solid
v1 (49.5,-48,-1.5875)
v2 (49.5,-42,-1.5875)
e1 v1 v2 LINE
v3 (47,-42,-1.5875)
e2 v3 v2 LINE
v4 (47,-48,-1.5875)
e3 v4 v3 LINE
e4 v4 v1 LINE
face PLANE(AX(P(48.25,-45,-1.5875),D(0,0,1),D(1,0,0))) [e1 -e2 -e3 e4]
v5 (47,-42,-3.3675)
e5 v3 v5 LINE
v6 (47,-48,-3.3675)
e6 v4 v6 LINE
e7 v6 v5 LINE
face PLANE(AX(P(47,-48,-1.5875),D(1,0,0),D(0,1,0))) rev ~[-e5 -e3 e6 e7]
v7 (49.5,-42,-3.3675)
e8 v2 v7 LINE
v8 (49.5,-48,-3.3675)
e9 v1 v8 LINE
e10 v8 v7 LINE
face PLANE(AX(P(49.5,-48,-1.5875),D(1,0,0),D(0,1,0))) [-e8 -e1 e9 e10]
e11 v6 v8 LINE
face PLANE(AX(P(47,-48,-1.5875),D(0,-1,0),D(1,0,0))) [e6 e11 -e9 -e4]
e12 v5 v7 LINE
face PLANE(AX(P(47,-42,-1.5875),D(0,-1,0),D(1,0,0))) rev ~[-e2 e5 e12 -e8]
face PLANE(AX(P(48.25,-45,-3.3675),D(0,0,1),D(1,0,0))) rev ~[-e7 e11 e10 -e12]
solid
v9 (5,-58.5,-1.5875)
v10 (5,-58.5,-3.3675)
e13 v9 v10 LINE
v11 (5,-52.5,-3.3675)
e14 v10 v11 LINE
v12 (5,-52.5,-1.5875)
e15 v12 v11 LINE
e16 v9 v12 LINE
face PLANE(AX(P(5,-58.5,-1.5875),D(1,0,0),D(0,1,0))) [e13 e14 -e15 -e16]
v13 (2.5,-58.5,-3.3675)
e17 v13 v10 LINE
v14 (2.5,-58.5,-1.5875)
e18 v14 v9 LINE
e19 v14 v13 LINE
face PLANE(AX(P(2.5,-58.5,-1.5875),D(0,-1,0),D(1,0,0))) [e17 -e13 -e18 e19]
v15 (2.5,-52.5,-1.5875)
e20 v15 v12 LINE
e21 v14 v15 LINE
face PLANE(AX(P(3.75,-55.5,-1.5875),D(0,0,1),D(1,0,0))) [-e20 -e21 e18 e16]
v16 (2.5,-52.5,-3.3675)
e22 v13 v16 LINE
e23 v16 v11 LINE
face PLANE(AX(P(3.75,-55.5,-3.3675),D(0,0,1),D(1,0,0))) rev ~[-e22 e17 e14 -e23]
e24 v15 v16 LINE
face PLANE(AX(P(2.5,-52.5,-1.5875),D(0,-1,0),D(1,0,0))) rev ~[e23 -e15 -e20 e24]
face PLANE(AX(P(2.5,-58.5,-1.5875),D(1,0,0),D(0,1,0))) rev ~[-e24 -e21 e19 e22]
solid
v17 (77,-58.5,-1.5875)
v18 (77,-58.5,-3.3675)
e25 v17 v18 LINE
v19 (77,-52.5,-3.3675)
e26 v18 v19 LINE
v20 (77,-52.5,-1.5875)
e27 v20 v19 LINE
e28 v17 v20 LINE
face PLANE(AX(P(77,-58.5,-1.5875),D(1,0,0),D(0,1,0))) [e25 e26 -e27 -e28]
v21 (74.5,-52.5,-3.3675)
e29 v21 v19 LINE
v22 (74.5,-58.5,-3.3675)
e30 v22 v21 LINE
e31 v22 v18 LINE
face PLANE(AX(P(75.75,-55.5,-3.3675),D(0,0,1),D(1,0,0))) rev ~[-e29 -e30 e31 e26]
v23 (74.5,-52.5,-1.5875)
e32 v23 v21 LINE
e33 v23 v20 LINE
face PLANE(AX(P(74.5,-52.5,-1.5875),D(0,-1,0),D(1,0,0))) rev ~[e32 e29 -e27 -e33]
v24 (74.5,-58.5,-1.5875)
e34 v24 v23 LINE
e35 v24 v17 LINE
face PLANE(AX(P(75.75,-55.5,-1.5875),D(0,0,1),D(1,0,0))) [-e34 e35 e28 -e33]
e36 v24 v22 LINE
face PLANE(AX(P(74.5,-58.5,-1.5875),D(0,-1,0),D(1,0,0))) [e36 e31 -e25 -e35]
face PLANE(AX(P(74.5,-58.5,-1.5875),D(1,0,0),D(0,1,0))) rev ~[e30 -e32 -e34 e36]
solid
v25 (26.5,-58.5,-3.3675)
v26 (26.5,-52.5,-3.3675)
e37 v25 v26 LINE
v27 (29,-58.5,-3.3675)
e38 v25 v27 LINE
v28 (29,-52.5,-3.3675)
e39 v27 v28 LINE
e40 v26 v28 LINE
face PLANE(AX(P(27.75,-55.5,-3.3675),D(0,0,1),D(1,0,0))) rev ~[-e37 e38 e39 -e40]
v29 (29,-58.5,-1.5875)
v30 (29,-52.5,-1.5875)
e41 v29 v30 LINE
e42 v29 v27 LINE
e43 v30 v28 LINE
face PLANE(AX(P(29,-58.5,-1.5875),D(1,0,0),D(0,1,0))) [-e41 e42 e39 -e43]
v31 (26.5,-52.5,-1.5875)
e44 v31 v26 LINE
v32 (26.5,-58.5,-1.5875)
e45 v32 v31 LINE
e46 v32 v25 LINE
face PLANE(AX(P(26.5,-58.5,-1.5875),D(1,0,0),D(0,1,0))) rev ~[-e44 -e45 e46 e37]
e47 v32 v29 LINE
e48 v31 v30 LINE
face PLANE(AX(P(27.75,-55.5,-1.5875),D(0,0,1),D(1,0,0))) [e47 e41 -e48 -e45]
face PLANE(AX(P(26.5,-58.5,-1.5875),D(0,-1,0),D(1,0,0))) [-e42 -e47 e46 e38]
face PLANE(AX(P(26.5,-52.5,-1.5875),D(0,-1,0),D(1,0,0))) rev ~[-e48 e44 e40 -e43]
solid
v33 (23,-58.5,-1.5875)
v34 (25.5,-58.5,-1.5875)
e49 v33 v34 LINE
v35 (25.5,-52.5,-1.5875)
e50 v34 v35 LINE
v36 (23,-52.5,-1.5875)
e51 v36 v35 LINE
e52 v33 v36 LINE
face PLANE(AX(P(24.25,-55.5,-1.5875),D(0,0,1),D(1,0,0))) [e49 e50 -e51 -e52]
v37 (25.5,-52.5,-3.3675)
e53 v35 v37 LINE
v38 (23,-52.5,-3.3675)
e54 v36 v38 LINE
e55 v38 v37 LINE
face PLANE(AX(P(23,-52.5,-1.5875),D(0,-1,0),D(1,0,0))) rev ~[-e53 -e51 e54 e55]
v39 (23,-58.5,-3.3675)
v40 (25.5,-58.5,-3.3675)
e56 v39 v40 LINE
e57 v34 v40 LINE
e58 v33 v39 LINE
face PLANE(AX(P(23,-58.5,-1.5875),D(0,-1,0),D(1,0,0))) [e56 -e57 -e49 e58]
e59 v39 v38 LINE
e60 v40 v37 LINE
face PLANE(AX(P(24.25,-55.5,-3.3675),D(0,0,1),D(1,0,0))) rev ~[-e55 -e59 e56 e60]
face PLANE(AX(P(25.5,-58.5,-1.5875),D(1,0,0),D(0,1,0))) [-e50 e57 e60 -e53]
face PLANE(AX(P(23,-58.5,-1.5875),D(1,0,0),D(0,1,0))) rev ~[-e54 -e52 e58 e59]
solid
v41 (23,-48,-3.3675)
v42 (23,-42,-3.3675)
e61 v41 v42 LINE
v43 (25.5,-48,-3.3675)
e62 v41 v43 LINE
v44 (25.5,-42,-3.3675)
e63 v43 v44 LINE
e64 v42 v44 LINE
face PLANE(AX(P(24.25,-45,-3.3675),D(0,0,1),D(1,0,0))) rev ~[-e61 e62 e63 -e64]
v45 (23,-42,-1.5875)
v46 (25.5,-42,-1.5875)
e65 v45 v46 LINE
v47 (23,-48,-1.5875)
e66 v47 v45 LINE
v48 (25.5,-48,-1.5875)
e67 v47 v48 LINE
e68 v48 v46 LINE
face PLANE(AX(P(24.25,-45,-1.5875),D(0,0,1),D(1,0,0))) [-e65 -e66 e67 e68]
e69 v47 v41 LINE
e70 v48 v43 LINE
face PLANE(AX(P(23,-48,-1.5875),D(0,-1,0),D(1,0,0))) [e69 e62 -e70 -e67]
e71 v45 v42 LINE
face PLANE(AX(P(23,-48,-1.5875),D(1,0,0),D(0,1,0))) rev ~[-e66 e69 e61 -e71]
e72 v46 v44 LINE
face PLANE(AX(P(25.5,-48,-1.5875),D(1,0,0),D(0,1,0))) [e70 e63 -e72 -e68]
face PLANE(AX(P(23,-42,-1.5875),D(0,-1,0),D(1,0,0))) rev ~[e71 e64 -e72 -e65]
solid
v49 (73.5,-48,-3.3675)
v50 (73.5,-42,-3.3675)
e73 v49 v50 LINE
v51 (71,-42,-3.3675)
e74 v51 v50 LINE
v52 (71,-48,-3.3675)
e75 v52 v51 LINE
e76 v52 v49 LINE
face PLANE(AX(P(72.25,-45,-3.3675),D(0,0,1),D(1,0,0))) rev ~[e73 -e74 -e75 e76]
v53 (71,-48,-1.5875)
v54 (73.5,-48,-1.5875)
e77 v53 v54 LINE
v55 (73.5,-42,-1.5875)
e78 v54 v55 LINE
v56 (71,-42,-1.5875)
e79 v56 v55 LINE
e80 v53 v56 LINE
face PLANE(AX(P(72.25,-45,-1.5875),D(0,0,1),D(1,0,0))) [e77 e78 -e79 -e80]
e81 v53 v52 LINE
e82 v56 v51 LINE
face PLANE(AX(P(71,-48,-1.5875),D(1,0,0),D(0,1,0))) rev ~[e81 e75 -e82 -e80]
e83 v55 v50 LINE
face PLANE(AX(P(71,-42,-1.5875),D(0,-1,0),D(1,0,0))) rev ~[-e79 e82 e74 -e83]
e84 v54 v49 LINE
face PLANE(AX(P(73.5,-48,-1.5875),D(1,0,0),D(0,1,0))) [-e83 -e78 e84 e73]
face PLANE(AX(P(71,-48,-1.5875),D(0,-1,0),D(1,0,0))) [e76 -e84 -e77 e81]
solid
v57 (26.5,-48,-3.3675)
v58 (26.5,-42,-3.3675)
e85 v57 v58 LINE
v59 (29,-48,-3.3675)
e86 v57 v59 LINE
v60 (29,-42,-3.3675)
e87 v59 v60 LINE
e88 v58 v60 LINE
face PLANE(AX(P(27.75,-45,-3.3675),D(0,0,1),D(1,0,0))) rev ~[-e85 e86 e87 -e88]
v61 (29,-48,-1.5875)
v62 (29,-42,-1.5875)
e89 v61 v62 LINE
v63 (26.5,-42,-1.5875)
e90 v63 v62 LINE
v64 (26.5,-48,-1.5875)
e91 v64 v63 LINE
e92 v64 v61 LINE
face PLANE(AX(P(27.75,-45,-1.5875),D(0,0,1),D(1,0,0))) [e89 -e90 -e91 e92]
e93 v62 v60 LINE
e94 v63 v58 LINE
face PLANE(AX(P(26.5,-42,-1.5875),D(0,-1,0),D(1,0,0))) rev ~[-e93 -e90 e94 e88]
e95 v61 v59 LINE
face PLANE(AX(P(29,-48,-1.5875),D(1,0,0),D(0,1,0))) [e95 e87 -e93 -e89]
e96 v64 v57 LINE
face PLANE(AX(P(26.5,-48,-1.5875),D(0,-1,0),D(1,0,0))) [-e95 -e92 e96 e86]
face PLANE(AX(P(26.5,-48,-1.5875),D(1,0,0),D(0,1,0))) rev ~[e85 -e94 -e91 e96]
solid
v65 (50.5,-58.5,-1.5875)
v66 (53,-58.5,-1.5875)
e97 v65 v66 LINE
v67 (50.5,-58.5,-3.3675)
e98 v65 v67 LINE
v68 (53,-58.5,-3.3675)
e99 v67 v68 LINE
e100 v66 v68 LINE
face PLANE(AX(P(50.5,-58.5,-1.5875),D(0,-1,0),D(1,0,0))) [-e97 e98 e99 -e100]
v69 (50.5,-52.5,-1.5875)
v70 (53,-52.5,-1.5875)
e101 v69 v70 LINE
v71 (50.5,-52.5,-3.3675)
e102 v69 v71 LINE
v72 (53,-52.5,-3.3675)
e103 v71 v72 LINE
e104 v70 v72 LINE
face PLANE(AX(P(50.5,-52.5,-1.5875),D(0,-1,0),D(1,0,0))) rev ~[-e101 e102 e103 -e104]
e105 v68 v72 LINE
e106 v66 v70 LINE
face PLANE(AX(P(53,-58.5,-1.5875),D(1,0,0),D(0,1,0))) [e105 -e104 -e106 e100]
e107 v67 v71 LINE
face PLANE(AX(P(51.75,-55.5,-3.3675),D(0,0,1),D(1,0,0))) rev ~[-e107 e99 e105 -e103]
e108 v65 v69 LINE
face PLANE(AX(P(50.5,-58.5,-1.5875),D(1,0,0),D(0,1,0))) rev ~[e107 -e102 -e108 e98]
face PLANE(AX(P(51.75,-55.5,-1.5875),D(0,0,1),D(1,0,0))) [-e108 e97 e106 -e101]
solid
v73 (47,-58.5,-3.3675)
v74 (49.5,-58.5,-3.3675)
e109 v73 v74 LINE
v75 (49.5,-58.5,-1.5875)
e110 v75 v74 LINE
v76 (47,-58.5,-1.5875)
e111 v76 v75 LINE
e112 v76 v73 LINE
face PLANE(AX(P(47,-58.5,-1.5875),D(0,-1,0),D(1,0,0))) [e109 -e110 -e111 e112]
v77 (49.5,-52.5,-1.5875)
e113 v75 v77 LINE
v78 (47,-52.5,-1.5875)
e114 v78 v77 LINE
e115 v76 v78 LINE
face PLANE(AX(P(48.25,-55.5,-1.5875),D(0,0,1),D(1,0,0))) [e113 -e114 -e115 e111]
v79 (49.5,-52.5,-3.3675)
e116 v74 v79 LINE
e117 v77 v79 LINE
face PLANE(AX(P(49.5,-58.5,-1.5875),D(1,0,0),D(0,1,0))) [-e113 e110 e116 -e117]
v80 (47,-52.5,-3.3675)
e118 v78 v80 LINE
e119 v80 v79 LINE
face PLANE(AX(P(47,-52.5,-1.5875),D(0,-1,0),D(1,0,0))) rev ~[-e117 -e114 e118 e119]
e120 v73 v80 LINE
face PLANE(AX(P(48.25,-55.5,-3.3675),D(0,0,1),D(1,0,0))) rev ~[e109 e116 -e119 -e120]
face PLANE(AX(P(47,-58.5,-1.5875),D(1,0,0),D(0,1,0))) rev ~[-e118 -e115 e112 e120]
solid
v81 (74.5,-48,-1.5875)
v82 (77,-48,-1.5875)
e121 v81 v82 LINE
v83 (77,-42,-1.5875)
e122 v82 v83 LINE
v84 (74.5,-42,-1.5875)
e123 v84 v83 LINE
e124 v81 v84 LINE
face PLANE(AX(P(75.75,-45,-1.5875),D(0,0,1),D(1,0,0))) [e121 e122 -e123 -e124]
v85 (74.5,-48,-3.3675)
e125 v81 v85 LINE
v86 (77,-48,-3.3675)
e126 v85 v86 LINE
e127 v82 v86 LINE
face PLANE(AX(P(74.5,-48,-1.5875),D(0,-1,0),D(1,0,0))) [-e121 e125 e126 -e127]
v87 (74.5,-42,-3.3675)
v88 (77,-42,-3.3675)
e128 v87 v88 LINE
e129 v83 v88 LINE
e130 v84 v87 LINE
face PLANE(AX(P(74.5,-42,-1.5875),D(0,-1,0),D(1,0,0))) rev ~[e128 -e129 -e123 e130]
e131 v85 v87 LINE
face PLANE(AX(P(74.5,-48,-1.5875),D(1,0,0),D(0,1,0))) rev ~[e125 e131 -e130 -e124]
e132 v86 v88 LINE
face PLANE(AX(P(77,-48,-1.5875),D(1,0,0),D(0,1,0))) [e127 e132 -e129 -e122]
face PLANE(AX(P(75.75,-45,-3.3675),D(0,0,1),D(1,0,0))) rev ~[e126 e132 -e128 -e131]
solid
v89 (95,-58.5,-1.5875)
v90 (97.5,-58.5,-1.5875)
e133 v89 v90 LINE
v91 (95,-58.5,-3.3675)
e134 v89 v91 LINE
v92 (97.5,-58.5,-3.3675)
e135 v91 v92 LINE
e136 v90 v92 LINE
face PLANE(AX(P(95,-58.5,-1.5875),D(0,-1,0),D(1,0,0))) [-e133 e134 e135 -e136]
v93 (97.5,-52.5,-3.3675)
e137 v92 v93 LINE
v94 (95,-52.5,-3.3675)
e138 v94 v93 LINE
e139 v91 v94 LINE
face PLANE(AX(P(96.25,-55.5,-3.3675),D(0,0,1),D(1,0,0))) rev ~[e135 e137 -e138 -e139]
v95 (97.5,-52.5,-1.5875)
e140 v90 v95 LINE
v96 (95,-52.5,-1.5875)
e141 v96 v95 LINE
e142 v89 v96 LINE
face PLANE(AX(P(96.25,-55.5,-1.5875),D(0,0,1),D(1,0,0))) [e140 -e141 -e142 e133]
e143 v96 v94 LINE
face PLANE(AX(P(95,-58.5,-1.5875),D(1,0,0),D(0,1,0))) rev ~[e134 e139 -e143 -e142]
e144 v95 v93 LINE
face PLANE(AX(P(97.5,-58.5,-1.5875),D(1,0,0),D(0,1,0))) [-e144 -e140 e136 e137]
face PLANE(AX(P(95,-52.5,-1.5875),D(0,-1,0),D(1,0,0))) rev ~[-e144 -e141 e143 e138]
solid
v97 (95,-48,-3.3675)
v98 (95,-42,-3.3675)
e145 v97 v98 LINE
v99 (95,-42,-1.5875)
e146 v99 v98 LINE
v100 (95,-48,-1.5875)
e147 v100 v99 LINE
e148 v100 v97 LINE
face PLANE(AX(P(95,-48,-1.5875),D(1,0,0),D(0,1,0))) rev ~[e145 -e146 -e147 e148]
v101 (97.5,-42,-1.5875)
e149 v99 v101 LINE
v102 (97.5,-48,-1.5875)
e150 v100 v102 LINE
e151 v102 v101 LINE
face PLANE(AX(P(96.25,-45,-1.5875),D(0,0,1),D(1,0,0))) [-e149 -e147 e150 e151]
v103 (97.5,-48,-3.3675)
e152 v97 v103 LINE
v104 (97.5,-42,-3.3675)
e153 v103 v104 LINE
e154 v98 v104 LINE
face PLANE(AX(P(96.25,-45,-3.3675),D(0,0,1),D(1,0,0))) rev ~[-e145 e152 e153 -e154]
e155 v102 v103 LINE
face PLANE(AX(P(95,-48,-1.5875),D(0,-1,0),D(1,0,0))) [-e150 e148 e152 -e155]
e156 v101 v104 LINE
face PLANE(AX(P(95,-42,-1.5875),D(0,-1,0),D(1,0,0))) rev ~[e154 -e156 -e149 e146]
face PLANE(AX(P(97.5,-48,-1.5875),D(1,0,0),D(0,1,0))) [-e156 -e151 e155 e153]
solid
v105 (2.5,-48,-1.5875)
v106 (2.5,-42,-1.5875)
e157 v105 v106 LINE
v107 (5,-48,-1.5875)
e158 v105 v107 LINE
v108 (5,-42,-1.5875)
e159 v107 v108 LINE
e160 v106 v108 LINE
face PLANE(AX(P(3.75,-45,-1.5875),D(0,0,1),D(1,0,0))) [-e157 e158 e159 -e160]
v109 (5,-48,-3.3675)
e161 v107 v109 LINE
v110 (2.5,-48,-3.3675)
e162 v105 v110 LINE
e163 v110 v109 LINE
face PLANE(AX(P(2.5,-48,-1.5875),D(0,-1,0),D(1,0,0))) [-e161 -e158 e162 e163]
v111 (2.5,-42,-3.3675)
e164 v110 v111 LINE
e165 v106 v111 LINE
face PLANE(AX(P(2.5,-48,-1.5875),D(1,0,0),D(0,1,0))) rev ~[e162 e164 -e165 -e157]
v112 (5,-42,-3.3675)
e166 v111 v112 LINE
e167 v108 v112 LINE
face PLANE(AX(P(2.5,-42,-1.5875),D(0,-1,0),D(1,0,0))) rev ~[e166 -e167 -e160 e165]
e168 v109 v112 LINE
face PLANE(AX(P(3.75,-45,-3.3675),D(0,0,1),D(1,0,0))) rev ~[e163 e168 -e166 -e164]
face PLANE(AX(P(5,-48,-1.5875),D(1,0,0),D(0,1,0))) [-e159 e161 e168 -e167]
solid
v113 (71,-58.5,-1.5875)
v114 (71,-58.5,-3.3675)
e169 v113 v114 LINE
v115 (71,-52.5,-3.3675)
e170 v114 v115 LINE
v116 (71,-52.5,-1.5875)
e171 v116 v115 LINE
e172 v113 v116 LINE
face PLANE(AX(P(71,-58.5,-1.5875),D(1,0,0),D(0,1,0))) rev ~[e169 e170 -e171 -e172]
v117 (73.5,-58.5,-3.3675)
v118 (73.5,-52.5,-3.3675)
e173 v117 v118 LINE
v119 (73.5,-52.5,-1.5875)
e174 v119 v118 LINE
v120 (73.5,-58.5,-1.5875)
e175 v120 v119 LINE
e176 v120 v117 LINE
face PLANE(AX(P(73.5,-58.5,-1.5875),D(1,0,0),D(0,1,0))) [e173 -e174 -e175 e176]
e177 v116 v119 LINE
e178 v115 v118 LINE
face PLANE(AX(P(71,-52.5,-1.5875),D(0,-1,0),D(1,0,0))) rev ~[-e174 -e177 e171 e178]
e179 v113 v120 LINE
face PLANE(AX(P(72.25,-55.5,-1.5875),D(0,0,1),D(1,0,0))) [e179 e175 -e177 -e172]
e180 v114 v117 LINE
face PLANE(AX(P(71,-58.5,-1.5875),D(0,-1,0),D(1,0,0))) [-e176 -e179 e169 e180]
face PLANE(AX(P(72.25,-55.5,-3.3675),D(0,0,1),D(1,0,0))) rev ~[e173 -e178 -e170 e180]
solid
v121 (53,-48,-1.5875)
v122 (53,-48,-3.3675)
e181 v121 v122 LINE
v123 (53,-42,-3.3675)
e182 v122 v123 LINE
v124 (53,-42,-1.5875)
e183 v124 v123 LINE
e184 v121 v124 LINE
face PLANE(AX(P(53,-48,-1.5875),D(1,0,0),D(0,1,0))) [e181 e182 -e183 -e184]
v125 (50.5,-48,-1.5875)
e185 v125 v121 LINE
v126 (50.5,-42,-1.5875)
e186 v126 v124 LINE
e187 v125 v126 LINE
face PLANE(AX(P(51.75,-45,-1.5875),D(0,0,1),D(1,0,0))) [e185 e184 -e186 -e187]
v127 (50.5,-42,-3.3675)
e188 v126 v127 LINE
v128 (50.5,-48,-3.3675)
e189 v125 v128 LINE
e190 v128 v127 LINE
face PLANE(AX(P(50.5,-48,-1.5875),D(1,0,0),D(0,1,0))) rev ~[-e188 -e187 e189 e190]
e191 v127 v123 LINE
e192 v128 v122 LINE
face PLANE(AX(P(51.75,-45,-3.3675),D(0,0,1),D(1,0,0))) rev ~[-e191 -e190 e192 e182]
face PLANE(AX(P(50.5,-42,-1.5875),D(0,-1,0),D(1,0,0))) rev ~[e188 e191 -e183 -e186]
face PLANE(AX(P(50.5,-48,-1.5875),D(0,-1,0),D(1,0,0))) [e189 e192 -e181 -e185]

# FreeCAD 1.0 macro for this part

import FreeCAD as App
import Part
import Sketcher

doc = App.newDocument("Part")
params = doc.addObject("Spreadsheet::Sheet", "Params")
for row, (alias, value) in enumerate([
    ("sketch1_height", "6 mm"),
    ("sketch1_width", "2.5 mm"),
    ("pad1_length", "1.78 mm"),
    ("sketch2_height", "6 mm"),
    ("sketch2_width", "2.5 mm"),
    ("pad2_length", "1.78 mm"),
    ("sketch3_height", "6 mm"),
    ("sketch3_width", "2.5 mm"),
    ("pad3_length", "1.78 mm"),
    ("sketch4_height", "6 mm"),
    ("sketch4_width", "2.5 mm"),
    ("pad4_length", "1.78 mm"),
    ("sketch5_height", "6 mm"),
    ("sketch5_width", "2.5 mm"),
    ("pad5_length", "1.78 mm"),
    ("sketch6_height", "6 mm"),
    ("sketch6_width", "2.5 mm"),
    ("pad6_length", "1.78 mm"),
    ("sketch7_height", "6 mm"),
    ("sketch7_width", "2.5 mm"),
    ("pad7_length", "1.78 mm"),
    ("sketch8_height", "6 mm"),
    ("sketch8_width", "2.5 mm"),
    ("pad8_length", "1.78 mm"),
    ("sketch9_height", "6 mm"),
    ("sketch9_width", "2.5 mm"),
    ("pad9_length", "1.78 mm"),
    ("sketch10_height", "6 mm"),
    ("sketch10_width", "2.5 mm"),
    ("pad10_length", "1.78 mm"),
    ("sketch11_height", "6 mm"),
    ("sketch11_width", "2.5 mm"),
    ("pad11_length", "1.78 mm"),
    ("sketch12_height", "6 mm"),
    ("sketch12_width", "2.5 mm"),
    ("pad12_length", "1.78 mm"),
    ("sketch13_height", "6 mm"),
    ("sketch13_width", "2.5 mm"),
    ("pad13_length", "1.78 mm"),
    ("sketch14_height", "6 mm"),
    ("sketch14_width", "2.5 mm"),
    ("pad14_length", "1.78 mm"),
    ("sketch15_height", "6 mm"),
    ("sketch15_width", "2.5 mm"),
    ("pad15_length", "1.78 mm"),
    ("sketch16_height", "6 mm"),
    ("sketch16_width", "2.5 mm"),
    ("pad16_length", "1.78 mm"),
], start=1):
    params.set(f"A{row}", alias)
    params.set(f"B{row}", "=" + value)
    params.setAlias(f"B{row}", alias)

body = doc.addObject("PartDesign::Body", "Body")

# Sketch on XY plane
sketch1 = doc.addObject("Sketcher::SketchObject", "Sketch")
body.addObject(sketch1)
sketch1.AttachmentSupport = (doc.XY_Plane, [""])
sketch1.MapMode = "FlatFace"
sketch1.AttachmentOffset = App.Placement(App.Vector(0, 0, -1.5875), App.Rotation())
sketch1.addGeometry([
    Part.LineSegment(App.Vector(23, -42, 0), App.Vector(23, -48, 0)),
    Part.LineSegment(App.Vector(23, -48, 0), App.Vector(25.5, -48, 0)),
    Part.LineSegment(App.Vector(25.5, -48, 0), App.Vector(25.5, -42, 0)),
    Part.LineSegment(App.Vector(25.5, -42, 0), App.Vector(23, -42, 0)),
], False)
sketch1.addConstraint([
    Sketcher.Constraint("Coincident", 0, 2, 1, 1),
    Sketcher.Constraint("Coincident", 1, 2, 2, 1),
    Sketcher.Constraint("Coincident", 2, 2, 3, 1),
    Sketcher.Constraint("Coincident", 3, 2, 0, 1),
    Sketcher.Constraint("Vertical", 0),
    Sketcher.Constraint("Horizontal", 1),
    Sketcher.Constraint("Vertical", 2),
    Sketcher.Constraint("Horizontal", 3),
    Sketcher.Constraint("DistanceY", 0, 2, 0, 1, 6.0),
    Sketcher.Constraint("DistanceX", 1, 1, 1, 2, 2.5),
    Sketcher.Constraint("DistanceX", -1, 1, 0, 2, 23.0),
    Sketcher.Constraint("DistanceY", 0, 2, -1, 1, 48.0),
])
sketch1.setExpression("Constraints[8]", "Params.sketch1_height")
sketch1.setExpression("Constraints[9]", "Params.sketch1_width")
pad1 = doc.addObject("PartDesign::Pad", "Pad")
body.addObject(pad1)
pad1.Profile = sketch1
pad1.setExpression("Length", "Params.pad1_length")
pad1.Reversed = True
body2 = doc.addObject("PartDesign::Body", "Body001")

# Sketch on XY plane
sketch2 = doc.addObject("Sketcher::SketchObject", "Sketch001")
body2.addObject(sketch2)
sketch2.AttachmentSupport = (doc.getObject("XY_Plane001"), [""])
sketch2.MapMode = "FlatFace"
sketch2.AttachmentOffset = App.Placement(App.Vector(0, 0, -1.5875), App.Rotation())
sketch2.addGeometry([
    Part.LineSegment(App.Vector(2.5, -42, 0), App.Vector(2.5, -48, 0)),
    Part.LineSegment(App.Vector(2.5, -48, 0), App.Vector(5, -48, 0)),
    Part.LineSegment(App.Vector(5, -48, 0), App.Vector(5, -42, 0)),
    Part.LineSegment(App.Vector(5, -42, 0), App.Vector(2.5, -42, 0)),
], False)
sketch2.addConstraint([
    Sketcher.Constraint("Coincident", 0, 2, 1, 1),
    Sketcher.Constraint("Coincident", 1, 2, 2, 1),
    Sketcher.Constraint("Coincident", 2, 2, 3, 1),
    Sketcher.Constraint("Coincident", 3, 2, 0, 1),
    Sketcher.Constraint("Vertical", 0),
    Sketcher.Constraint("Horizontal", 1),
    Sketcher.Constraint("Vertical", 2),
    Sketcher.Constraint("Horizontal", 3),
    Sketcher.Constraint("DistanceY", 0, 2, 0, 1, 6.0),
    Sketcher.Constraint("DistanceX", 1, 1, 1, 2, 2.5),
    Sketcher.Constraint("DistanceY", 0, 2, -1, 1, 48.0),
    Sketcher.Constraint("DistanceX", -1, 1, 1, 2, 5.0),
])
sketch2.setExpression("Constraints[8]", "Params.sketch2_height")
sketch2.setExpression("Constraints[9]", "Params.sketch2_width")
pad2 = doc.addObject("PartDesign::Pad", "Pad001")
body2.addObject(pad2)
pad2.Profile = sketch2
pad2.setExpression("Length", "Params.pad2_length")
pad2.Reversed = True
body3 = doc.addObject("PartDesign::Body", "Body002")

# Sketch on XY plane
sketch3 = doc.addObject("Sketcher::SketchObject", "Sketch002")
body3.addObject(sketch3)
sketch3.AttachmentSupport = (doc.getObject("XY_Plane002"), [""])
sketch3.MapMode = "FlatFace"
sketch3.AttachmentOffset = App.Placement(App.Vector(0, 0, -1.5875), App.Rotation())
sketch3.addGeometry([
    Part.LineSegment(App.Vector(2.5, -52.5, 0), App.Vector(2.5, -58.5, 0)),
    Part.LineSegment(App.Vector(2.5, -58.5, 0), App.Vector(5, -58.5, 0)),
    Part.LineSegment(App.Vector(5, -58.5, 0), App.Vector(5, -52.5, 0)),
    Part.LineSegment(App.Vector(5, -52.5, 0), App.Vector(2.5, -52.5, 0)),
], False)
sketch3.addConstraint([
    Sketcher.Constraint("Coincident", 0, 2, 1, 1),
    Sketcher.Constraint("Coincident", 1, 2, 2, 1),
    Sketcher.Constraint("Coincident", 2, 2, 3, 1),
    Sketcher.Constraint("Coincident", 3, 2, 0, 1),
    Sketcher.Constraint("Vertical", 0),
    Sketcher.Constraint("Horizontal", 1),
    Sketcher.Constraint("Vertical", 2),
    Sketcher.Constraint("Horizontal", 3),
    Sketcher.Constraint("DistanceY", 0, 2, 0, 1, 6.0),
    Sketcher.Constraint("DistanceX", 1, 1, 1, 2, 2.5),
    Sketcher.Constraint("DistanceX", -1, 1, 1, 2, 5.0),
    Sketcher.Constraint("DistanceY", 0, 2, -1, 1, 58.5),
])
sketch3.setExpression("Constraints[8]", "Params.sketch3_height")
sketch3.setExpression("Constraints[9]", "Params.sketch3_width")
pad3 = doc.addObject("PartDesign::Pad", "Pad002")
body3.addObject(pad3)
pad3.Profile = sketch3
pad3.setExpression("Length", "Params.pad3_length")
pad3.Reversed = True
body4 = doc.addObject("PartDesign::Body", "Body003")

# Sketch on XY plane
sketch4 = doc.addObject("Sketcher::SketchObject", "Sketch003")
body4.addObject(sketch4)
sketch4.AttachmentSupport = (doc.getObject("XY_Plane003"), [""])
sketch4.MapMode = "FlatFace"
sketch4.AttachmentOffset = App.Placement(App.Vector(0, 0, -1.5875), App.Rotation())
sketch4.addGeometry([
    Part.LineSegment(App.Vector(23, -52.5, 0), App.Vector(23, -58.5, 0)),
    Part.LineSegment(App.Vector(23, -58.5, 0), App.Vector(25.5, -58.5, 0)),
    Part.LineSegment(App.Vector(25.5, -58.5, 0), App.Vector(25.5, -52.5, 0)),
    Part.LineSegment(App.Vector(25.5, -52.5, 0), App.Vector(23, -52.5, 0)),
], False)
sketch4.addConstraint([
    Sketcher.Constraint("Coincident", 0, 2, 1, 1),
    Sketcher.Constraint("Coincident", 1, 2, 2, 1),
    Sketcher.Constraint("Coincident", 2, 2, 3, 1),
    Sketcher.Constraint("Coincident", 3, 2, 0, 1),
    Sketcher.Constraint("Vertical", 0),
    Sketcher.Constraint("Horizontal", 1),
    Sketcher.Constraint("Vertical", 2),
    Sketcher.Constraint("Horizontal", 3),
    Sketcher.Constraint("DistanceY", 0, 2, 0, 1, 6.0),
    Sketcher.Constraint("DistanceX", 1, 1, 1, 2, 2.5),
    Sketcher.Constraint("DistanceX", -1, 1, 0, 2, 23.0),
    Sketcher.Constraint("DistanceY", 0, 2, -1, 1, 58.5),
])
sketch4.setExpression("Constraints[8]", "Params.sketch4_height")
sketch4.setExpression("Constraints[9]", "Params.sketch4_width")
pad4 = doc.addObject("PartDesign::Pad", "Pad003")
body4.addObject(pad4)
pad4.Profile = sketch4
pad4.setExpression("Length", "Params.pad4_length")
pad4.Reversed = True
body5 = doc.addObject("PartDesign::Body", "Body004")

# Sketch on XY plane
sketch5 = doc.addObject("Sketcher::SketchObject", "Sketch004")
body5.addObject(sketch5)
sketch5.AttachmentSupport = (doc.getObject("XY_Plane004"), [""])
sketch5.MapMode = "FlatFace"
sketch5.AttachmentOffset = App.Placement(App.Vector(0, 0, -1.5875), App.Rotation())
sketch5.addGeometry([
    Part.LineSegment(App.Vector(47, -42, 0), App.Vector(47, -48, 0)),
    Part.LineSegment(App.Vector(47, -48, 0), App.Vector(49.5, -48, 0)),
    Part.LineSegment(App.Vector(49.5, -48, 0), App.Vector(49.5, -42, 0)),
    Part.LineSegment(App.Vector(49.5, -42, 0), App.Vector(47, -42, 0)),
], False)
sketch5.addConstraint([
    Sketcher.Constraint("Coincident", 0, 2, 1, 1),
    Sketcher.Constraint("Coincident", 1, 2, 2, 1),
    Sketcher.Constraint("Coincident", 2, 2, 3, 1),
    Sketcher.Constraint("Coincident", 3, 2, 0, 1),
    Sketcher.Constraint("Vertical", 0),
    Sketcher.Constraint("Horizontal", 1),
    Sketcher.Constraint("Vertical", 2),
    Sketcher.Constraint("Horizontal", 3),
    Sketcher.Constraint("DistanceY", 0, 2, 0, 1, 6.0),
    Sketcher.Constraint("DistanceX", 1, 1, 1, 2, 2.5),
    Sketcher.Constraint("DistanceX", -1, 1, 0, 2, 47.0),
    Sketcher.Constraint("DistanceY", 0, 2, -1, 1, 48.0),
])
sketch5.setExpression("Constraints[8]", "Params.sketch5_height")
sketch5.setExpression("Constraints[9]", "Params.sketch5_width")
pad5 = doc.addObject("PartDesign::Pad", "Pad004")
body5.addObject(pad5)
pad5.Profile = sketch5
pad5.setExpression("Length", "Params.pad5_length")
pad5.Reversed = True
body6 = doc.addObject("PartDesign::Body", "Body005")

# Sketch on XY plane
sketch6 = doc.addObject("Sketcher::SketchObject", "Sketch005")
body6.addObject(sketch6)
sketch6.AttachmentSupport = (doc.getObject("XY_Plane005"), [""])
sketch6.MapMode = "FlatFace"
sketch6.AttachmentOffset = App.Placement(App.Vector(0, 0, -1.5875), App.Rotation())
sketch6.addGeometry([
    Part.LineSegment(App.Vector(26.5, -42, 0), App.Vector(26.5, -48, 0)),
    Part.LineSegment(App.Vector(26.5, -48, 0), App.Vector(29, -48, 0)),
    Part.LineSegment(App.Vector(29, -48, 0), App.Vector(29, -42, 0)),
    Part.LineSegment(App.Vector(29, -42, 0), App.Vector(26.5, -42, 0)),
], False)
sketch6.addConstraint([
    Sketcher.Constraint("Coincident", 0, 2, 1, 1),
    Sketcher.Constraint("Coincident", 1, 2, 2, 1),
    Sketcher.Constraint("Coincident", 2, 2, 3, 1),
    Sketcher.Constraint("Coincident", 3, 2, 0, 1),
    Sketcher.Constraint("Vertical", 0),
    Sketcher.Constraint("Horizontal", 1),
    Sketcher.Constraint("Vertical", 2),
    Sketcher.Constraint("Horizontal", 3),
    Sketcher.Constraint("DistanceY", 0, 2, 0, 1, 6.0),
    Sketcher.Constraint("DistanceX", 1, 1, 1, 2, 2.5),
    Sketcher.Constraint("DistanceY", 0, 2, -1, 1, 48.0),
    Sketcher.Constraint("DistanceX", -1, 1, 1, 2, 29.0),
])
sketch6.setExpression("Constraints[8]", "Params.sketch6_height")
sketch6.setExpression("Constraints[9]", "Params.sketch6_width")
pad6 = doc.addObject("PartDesign::Pad", "Pad005")
body6.addObject(pad6)
pad6.Profile = sketch6
pad6.setExpression("Length", "Params.pad6_length")
pad6.Reversed = True
body7 = doc.addObject("PartDesign::Body", "Body006")

# Sketch on XY plane
sketch7 = doc.addObject("Sketcher::SketchObject", "Sketch006")
body7.addObject(sketch7)
sketch7.AttachmentSupport = (doc.getObject("XY_Plane006"), [""])
sketch7.MapMode = "FlatFace"
sketch7.AttachmentOffset = App.Placement(App.Vector(0, 0, -1.5875), App.Rotation())
sketch7.addGeometry([
    Part.LineSegment(App.Vector(26.5, -52.5, 0), App.Vector(26.5, -58.5, 0)),
    Part.LineSegment(App.Vector(26.5, -58.5, 0), App.Vector(29, -58.5, 0)),
    Part.LineSegment(App.Vector(29, -58.5, 0), App.Vector(29, -52.5, 0)),
    Part.LineSegment(App.Vector(29, -52.5, 0), App.Vector(26.5, -52.5, 0)),
], False)
sketch7.addConstraint([
    Sketcher.Constraint("Coincident", 0, 2, 1, 1),
    Sketcher.Constraint("Coincident", 1, 2, 2, 1),
    Sketcher.Constraint("Coincident", 2, 2, 3, 1),
    Sketcher.Constraint("Coincident", 3, 2, 0, 1),
    Sketcher.Constraint("Vertical", 0),
    Sketcher.Constraint("Horizontal", 1),
    Sketcher.Constraint("Vertical", 2),
    Sketcher.Constraint("Horizontal", 3),
    Sketcher.Constraint("DistanceY", 0, 2, 0, 1, 6.0),
    Sketcher.Constraint("DistanceX", 1, 1, 1, 2, 2.5),
    Sketcher.Constraint("DistanceX", -1, 1, 1, 2, 29.0),
    Sketcher.Constraint("DistanceY", 0, 2, -1, 1, 58.5),
])
sketch7.setExpression("Constraints[8]", "Params.sketch7_height")
sketch7.setExpression("Constraints[9]", "Params.sketch7_width")
pad7 = doc.addObject("PartDesign::Pad", "Pad006")
body7.addObject(pad7)
pad7.Profile = sketch7
pad7.setExpression("Length", "Params.pad7_length")
pad7.Reversed = True
body8 = doc.addObject("PartDesign::Body", "Body007")

# Sketch on XY plane
sketch8 = doc.addObject("Sketcher::SketchObject", "Sketch007")
body8.addObject(sketch8)
sketch8.AttachmentSupport = (doc.getObject("XY_Plane007"), [""])
sketch8.MapMode = "FlatFace"
sketch8.AttachmentOffset = App.Placement(App.Vector(0, 0, -1.5875), App.Rotation())
sketch8.addGeometry([
    Part.LineSegment(App.Vector(47, -52.5, 0), App.Vector(47, -58.5, 0)),
    Part.LineSegment(App.Vector(47, -58.5, 0), App.Vector(49.5, -58.5, 0)),
    Part.LineSegment(App.Vector(49.5, -58.5, 0), App.Vector(49.5, -52.5, 0)),
    Part.LineSegment(App.Vector(49.5, -52.5, 0), App.Vector(47, -52.5, 0)),
], False)
sketch8.addConstraint([
    Sketcher.Constraint("Coincident", 0, 2, 1, 1),
    Sketcher.Constraint("Coincident", 1, 2, 2, 1),
    Sketcher.Constraint("Coincident", 2, 2, 3, 1),
    Sketcher.Constraint("Coincident", 3, 2, 0, 1),
    Sketcher.Constraint("Vertical", 0),
    Sketcher.Constraint("Horizontal", 1),
    Sketcher.Constraint("Vertical", 2),
    Sketcher.Constraint("Horizontal", 3),
    Sketcher.Constraint("DistanceY", 0, 2, 0, 1, 6.0),
    Sketcher.Constraint("DistanceX", 1, 1, 1, 2, 2.5),
    Sketcher.Constraint("DistanceX", -1, 1, 0, 2, 47.0),
    Sketcher.Constraint("DistanceY", 0, 2, -1, 1, 58.5),
])
sketch8.setExpression("Constraints[8]", "Params.sketch8_height")
sketch8.setExpression("Constraints[9]", "Params.sketch8_width")
pad8 = doc.addObject("PartDesign::Pad", "Pad007")
body8.addObject(pad8)
pad8.Profile = sketch8
pad8.setExpression("Length", "Params.pad8_length")
pad8.Reversed = True
body9 = doc.addObject("PartDesign::Body", "Body008")

# Sketch on XY plane
sketch9 = doc.addObject("Sketcher::SketchObject", "Sketch008")
body9.addObject(sketch9)
sketch9.AttachmentSupport = (doc.getObject("XY_Plane008"), [""])
sketch9.MapMode = "FlatFace"
sketch9.AttachmentOffset = App.Placement(App.Vector(0, 0, -1.5875), App.Rotation())
sketch9.addGeometry([
    Part.LineSegment(App.Vector(71, -42, 0), App.Vector(71, -48, 0)),
    Part.LineSegment(App.Vector(71, -48, 0), App.Vector(73.5, -48, 0)),
    Part.LineSegment(App.Vector(73.5, -48, 0), App.Vector(73.5, -42, 0)),
    Part.LineSegment(App.Vector(73.5, -42, 0), App.Vector(71, -42, 0)),
], False)
sketch9.addConstraint([
    Sketcher.Constraint("Coincident", 0, 2, 1, 1),
    Sketcher.Constraint("Coincident", 1, 2, 2, 1),
    Sketcher.Constraint("Coincident", 2, 2, 3, 1),
    Sketcher.Constraint("Coincident", 3, 2, 0, 1),
    Sketcher.Constraint("Vertical", 0),
    Sketcher.Constraint("Horizontal", 1),
    Sketcher.Constraint("Vertical", 2),
    Sketcher.Constraint("Horizontal", 3),
    Sketcher.Constraint("DistanceY", 0, 2, 0, 1, 6.0),
    Sketcher.Constraint("DistanceX", 1, 1, 1, 2, 2.5),
    Sketcher.Constraint("DistanceX", -1, 1, 0, 2, 71.0),
    Sketcher.Constraint("DistanceY", 0, 2, -1, 1, 48.0),
])
sketch9.setExpression("Constraints[8]", "Params.sketch9_height")
sketch9.setExpression("Constraints[9]", "Params.sketch9_width")
pad9 = doc.addObject("PartDesign::Pad", "Pad008")
body9.addObject(pad9)
pad9.Profile = sketch9
pad9.setExpression("Length", "Params.pad9_length")
pad9.Reversed = True
body10 = doc.addObject("PartDesign::Body", "Body009")

# Sketch on XY plane
sketch10 = doc.addObject("Sketcher::SketchObject", "Sketch009")
body10.addObject(sketch10)
sketch10.AttachmentSupport = (doc.getObject("XY_Plane009"), [""])
sketch10.MapMode = "FlatFace"
sketch10.AttachmentOffset = App.Placement(App.Vector(0, 0, -1.5875), App.Rotation())
sketch10.addGeometry([
    Part.LineSegment(App.Vector(50.5, -42, 0), App.Vector(50.5, -48, 0)),
    Part.LineSegment(App.Vector(50.5, -48, 0), App.Vector(53, -48, 0)),
    Part.LineSegment(App.Vector(53, -48, 0), App.Vector(53, -42, 0)),
    Part.LineSegment(App.Vector(53, -42, 0), App.Vector(50.5, -42, 0)),
], False)
sketch10.addConstraint([
    Sketcher.Constraint("Coincident", 0, 2, 1, 1),
    Sketcher.Constraint("Coincident", 1, 2, 2, 1),
    Sketcher.Constraint("Coincident", 2, 2, 3, 1),
    Sketcher.Constraint("Coincident", 3, 2, 0, 1),
    Sketcher.Constraint("Vertical", 0),
    Sketcher.Constraint("Horizontal", 1),
    Sketcher.Constraint("Vertical", 2),
    Sketcher.Constraint("Horizontal", 3),
    Sketcher.Constraint("DistanceY", 0, 2, 0, 1, 6.0),
    Sketcher.Constraint("DistanceX", 1, 1, 1, 2, 2.5),
    Sketcher.Constraint("DistanceY", 0, 2, -1, 1, 48.0),
    Sketcher.Constraint("DistanceX", -1, 1, 1, 2, 53.0),
])
sketch10.setExpression("Constraints[8]", "Params.sketch10_height")
sketch10.setExpression("Constraints[9]", "Params.sketch10_width")
pad10 = doc.addObject("PartDesign::Pad", "Pad009")
body10.addObject(pad10)
pad10.Profile = sketch10
pad10.setExpression("Length", "Params.pad10_length")
pad10.Reversed = True
body11 = doc.addObject("PartDesign::Body", "Body010")

# Sketch on XY plane
sketch11 = doc.addObject("Sketcher::SketchObject", "Sketch010")
body11.addObject(sketch11)
sketch11.AttachmentSupport = (doc.getObject("XY_Plane010"), [""])
sketch11.MapMode = "FlatFace"
sketch11.AttachmentOffset = App.Placement(App.Vector(0, 0, -1.5875), App.Rotation())
sketch11.addGeometry([
    Part.LineSegment(App.Vector(50.5, -52.5, 0), App.Vector(50.5, -58.5, 0)),
    Part.LineSegment(App.Vector(50.5, -58.5, 0), App.Vector(53, -58.5, 0)),
    Part.LineSegment(App.Vector(53, -58.5, 0), App.Vector(53, -52.5, 0)),
    Part.LineSegment(App.Vector(53, -52.5, 0), App.Vector(50.5, -52.5, 0)),
], False)
sketch11.addConstraint([
    Sketcher.Constraint("Coincident", 0, 2, 1, 1),
    Sketcher.Constraint("Coincident", 1, 2, 2, 1),
    Sketcher.Constraint("Coincident", 2, 2, 3, 1),
    Sketcher.Constraint("Coincident", 3, 2, 0, 1),
    Sketcher.Constraint("Vertical", 0),
    Sketcher.Constraint("Horizontal", 1),
    Sketcher.Constraint("Vertical", 2),
    Sketcher.Constraint("Horizontal", 3),
    Sketcher.Constraint("DistanceY", 0, 2, 0, 1, 6.0),
    Sketcher.Constraint("DistanceX", 1, 1, 1, 2, 2.5),
    Sketcher.Constraint("DistanceX", -1, 1, 1, 2, 53.0),
    Sketcher.Constraint("DistanceY", 0, 2, -1, 1, 58.5),
])
sketch11.setExpression("Constraints[8]", "Params.sketch11_height")
sketch11.setExpression("Constraints[9]", "Params.sketch11_width")
pad11 = doc.addObject("PartDesign::Pad", "Pad010")
body11.addObject(pad11)
pad11.Profile = sketch11
pad11.setExpression("Length", "Params.pad11_length")
pad11.Reversed = True
body12 = doc.addObject("PartDesign::Body", "Body011")

# Sketch on XY plane
sketch12 = doc.addObject("Sketcher::SketchObject", "Sketch011")
body12.addObject(sketch12)
sketch12.AttachmentSupport = (doc.getObject("XY_Plane011"), [""])
sketch12.MapMode = "FlatFace"
sketch12.AttachmentOffset = App.Placement(App.Vector(0, 0, -1.5875), App.Rotation())
sketch12.addGeometry([
    Part.LineSegment(App.Vector(71, -52.5, 0), App.Vector(71, -58.5, 0)),
    Part.LineSegment(App.Vector(71, -58.5, 0), App.Vector(73.5, -58.5, 0)),
    Part.LineSegment(App.Vector(73.5, -58.5, 0), App.Vector(73.5, -52.5, 0)),
    Part.LineSegment(App.Vector(73.5, -52.5, 0), App.Vector(71, -52.5, 0)),
], False)
sketch12.addConstraint([
    Sketcher.Constraint("Coincident", 0, 2, 1, 1),
    Sketcher.Constraint("Coincident", 1, 2, 2, 1),
    Sketcher.Constraint("Coincident", 2, 2, 3, 1),
    Sketcher.Constraint("Coincident", 3, 2, 0, 1),
    Sketcher.Constraint("Vertical", 0),
    Sketcher.Constraint("Horizontal", 1),
    Sketcher.Constraint("Vertical", 2),
    Sketcher.Constraint("Horizontal", 3),
    Sketcher.Constraint("DistanceY", 0, 2, 0, 1, 6.0),
    Sketcher.Constraint("DistanceX", 1, 1, 1, 2, 2.5),
    Sketcher.Constraint("DistanceX", -1, 1, 0, 2, 71.0),
    Sketcher.Constraint("DistanceY", 0, 2, -1, 1, 58.5),
])
sketch12.setExpression("Constraints[8]", "Params.sketch12_height")
sketch12.setExpression("Constraints[9]", "Params.sketch12_width")
pad12 = doc.addObject("PartDesign::Pad", "Pad011")
body12.addObject(pad12)
pad12.Profile = sketch12
pad12.setExpression("Length", "Params.pad12_length")
pad12.Reversed = True
body13 = doc.addObject("PartDesign::Body", "Body012")

# Sketch on XY plane
sketch13 = doc.addObject("Sketcher::SketchObject", "Sketch012")
body13.addObject(sketch13)
sketch13.AttachmentSupport = (doc.getObject("XY_Plane012"), [""])
sketch13.MapMode = "FlatFace"
sketch13.AttachmentOffset = App.Placement(App.Vector(0, 0, -1.5875), App.Rotation())
sketch13.addGeometry([
    Part.LineSegment(App.Vector(95, -42, 0), App.Vector(95, -48, 0)),
    Part.LineSegment(App.Vector(95, -48, 0), App.Vector(97.5, -48, 0)),
    Part.LineSegment(App.Vector(97.5, -48, 0), App.Vector(97.5, -42, 0)),
    Part.LineSegment(App.Vector(97.5, -42, 0), App.Vector(95, -42, 0)),
], False)
sketch13.addConstraint([
    Sketcher.Constraint("Coincident", 0, 2, 1, 1),
    Sketcher.Constraint("Coincident", 1, 2, 2, 1),
    Sketcher.Constraint("Coincident", 2, 2, 3, 1),
    Sketcher.Constraint("Coincident", 3, 2, 0, 1),
    Sketcher.Constraint("Vertical", 0),
    Sketcher.Constraint("Horizontal", 1),
    Sketcher.Constraint("Vertical", 2),
    Sketcher.Constraint("Horizontal", 3),
    Sketcher.Constraint("DistanceY", 0, 2, 0, 1, 6.0),
    Sketcher.Constraint("DistanceX", 1, 1, 1, 2, 2.5),
    Sketcher.Constraint("DistanceX", -1, 1, 0, 2, 95.0),
    Sketcher.Constraint("DistanceY", 0, 2, -1, 1, 48.0),
])
sketch13.setExpression("Constraints[8]", "Params.sketch13_height")
sketch13.setExpression("Constraints[9]", "Params.sketch13_width")
pad13 = doc.addObject("PartDesign::Pad", "Pad012")
body13.addObject(pad13)
pad13.Profile = sketch13
pad13.setExpression("Length", "Params.pad13_length")
pad13.Reversed = True
body14 = doc.addObject("PartDesign::Body", "Body013")

# Sketch on XY plane
sketch14 = doc.addObject("Sketcher::SketchObject", "Sketch013")
body14.addObject(sketch14)
sketch14.AttachmentSupport = (doc.getObject("XY_Plane013"), [""])
sketch14.MapMode = "FlatFace"
sketch14.AttachmentOffset = App.Placement(App.Vector(0, 0, -1.5875), App.Rotation())
sketch14.addGeometry([
    Part.LineSegment(App.Vector(74.5, -42, 0), App.Vector(74.5, -48, 0)),
    Part.LineSegment(App.Vector(74.5, -48, 0), App.Vector(77, -48, 0)),
    Part.LineSegment(App.Vector(77, -48, 0), App.Vector(77, -42, 0)),
    Part.LineSegment(App.Vector(77, -42, 0), App.Vector(74.5, -42, 0)),
], False)
sketch14.addConstraint([
    Sketcher.Constraint("Coincident", 0, 2, 1, 1),
    Sketcher.Constraint("Coincident", 1, 2, 2, 1),
    Sketcher.Constraint("Coincident", 2, 2, 3, 1),
    Sketcher.Constraint("Coincident", 3, 2, 0, 1),
    Sketcher.Constraint("Vertical", 0),
    Sketcher.Constraint("Horizontal", 1),
    Sketcher.Constraint("Vertical", 2),
    Sketcher.Constraint("Horizontal", 3),
    Sketcher.Constraint("DistanceY", 0, 2, 0, 1, 6.0),
    Sketcher.Constraint("DistanceX", 1, 1, 1, 2, 2.5),
    Sketcher.Constraint("DistanceY", 0, 2, -1, 1, 48.0),
    Sketcher.Constraint("DistanceX", -1, 1, 1, 2, 77.0),
])
sketch14.setExpression("Constraints[8]", "Params.sketch14_height")
sketch14.setExpression("Constraints[9]", "Params.sketch14_width")
pad14 = doc.addObject("PartDesign::Pad", "Pad013")
body14.addObject(pad14)
pad14.Profile = sketch14
pad14.setExpression("Length", "Params.pad14_length")
pad14.Reversed = True
body15 = doc.addObject("PartDesign::Body", "Body014")

# Sketch on XY plane
sketch15 = doc.addObject("Sketcher::SketchObject", "Sketch014")
body15.addObject(sketch15)
sketch15.AttachmentSupport = (doc.getObject("XY_Plane014"), [""])
sketch15.MapMode = "FlatFace"
sketch15.AttachmentOffset = App.Placement(App.Vector(0, 0, -1.5875), App.Rotation())
sketch15.addGeometry([
    Part.LineSegment(App.Vector(74.5, -52.5, 0), App.Vector(74.5, -58.5, 0)),
    Part.LineSegment(App.Vector(74.5, -58.5, 0), App.Vector(77, -58.5, 0)),
    Part.LineSegment(App.Vector(77, -58.5, 0), App.Vector(77, -52.5, 0)),
    Part.LineSegment(App.Vector(77, -52.5, 0), App.Vector(74.5, -52.5, 0)),
], False)
sketch15.addConstraint([
    Sketcher.Constraint("Coincident", 0, 2, 1, 1),
    Sketcher.Constraint("Coincident", 1, 2, 2, 1),
    Sketcher.Constraint("Coincident", 2, 2, 3, 1),
    Sketcher.Constraint("Coincident", 3, 2, 0, 1),
    Sketcher.Constraint("Vertical", 0),
    Sketcher.Constraint("Horizontal", 1),
    Sketcher.Constraint("Vertical", 2),
    Sketcher.Constraint("Horizontal", 3),
    Sketcher.Constraint("DistanceY", 0, 2, 0, 1, 6.0),
    Sketcher.Constraint("DistanceX", 1, 1, 1, 2, 2.5),
    Sketcher.Constraint("DistanceX", -1, 1, 1, 2, 77.0),
    Sketcher.Constraint("DistanceY", 0, 2, -1, 1, 58.5),
])
sketch15.setExpression("Constraints[8]", "Params.sketch15_height")
sketch15.setExpression("Constraints[9]", "Params.sketch15_width")
pad15 = doc.addObject("PartDesign::Pad", "Pad014")
body15.addObject(pad15)
pad15.Profile = sketch15
pad15.setExpression("Length", "Params.pad15_length")
pad15.Reversed = True
body16 = doc.addObject("PartDesign::Body", "Body015")

# Sketch on XY plane
sketch16 = doc.addObject("Sketcher::SketchObject", "Sketch015")
body16.addObject(sketch16)
sketch16.AttachmentSupport = (doc.getObject("XY_Plane015"), [""])
sketch16.MapMode = "FlatFace"
sketch16.AttachmentOffset = App.Placement(App.Vector(0, 0, -1.5875), App.Rotation())
sketch16.addGeometry([
    Part.LineSegment(App.Vector(95, -52.5, 0), App.Vector(95, -58.5, 0)),
    Part.LineSegment(App.Vector(95, -58.5, 0), App.Vector(97.5, -58.5, 0)),
    Part.LineSegment(App.Vector(97.5, -58.5, 0), App.Vector(97.5, -52.5, 0)),
    Part.LineSegment(App.Vector(97.5, -52.5, 0), App.Vector(95, -52.5, 0)),
], False)
sketch16.addConstraint([
    Sketcher.Constraint("Coincident", 0, 2, 1, 1),
    Sketcher.Constraint("Coincident", 1, 2, 2, 1),
    Sketcher.Constraint("Coincident", 2, 2, 3, 1),
    Sketcher.Constraint("Coincident", 3, 2, 0, 1),
    Sketcher.Constraint("Vertical", 0),
    Sketcher.Constraint("Horizontal", 1),
    Sketcher.Constraint("Vertical", 2),
    Sketcher.Constraint("Horizontal", 3),
    Sketcher.Constraint("DistanceY", 0, 2, 0, 1, 6.0),
    Sketcher.Constraint("DistanceX", 1, 1, 1, 2, 2.5),
    Sketcher.Constraint("DistanceX", -1, 1, 0, 2, 95.0),
    Sketcher.Constraint("DistanceY", 0, 2, -1, 1, 58.5),
])
sketch16.setExpression("Constraints[8]", "Params.sketch16_height")
sketch16.setExpression("Constraints[9]", "Params.sketch16_width")
pad16 = doc.addObject("PartDesign::Pad", "Pad015")
body16.addObject(pad16)
pad16.Profile = sketch16
pad16.setExpression("Length", "Params.pad16_length")
pad16.Reversed = True

doc.recompute()
